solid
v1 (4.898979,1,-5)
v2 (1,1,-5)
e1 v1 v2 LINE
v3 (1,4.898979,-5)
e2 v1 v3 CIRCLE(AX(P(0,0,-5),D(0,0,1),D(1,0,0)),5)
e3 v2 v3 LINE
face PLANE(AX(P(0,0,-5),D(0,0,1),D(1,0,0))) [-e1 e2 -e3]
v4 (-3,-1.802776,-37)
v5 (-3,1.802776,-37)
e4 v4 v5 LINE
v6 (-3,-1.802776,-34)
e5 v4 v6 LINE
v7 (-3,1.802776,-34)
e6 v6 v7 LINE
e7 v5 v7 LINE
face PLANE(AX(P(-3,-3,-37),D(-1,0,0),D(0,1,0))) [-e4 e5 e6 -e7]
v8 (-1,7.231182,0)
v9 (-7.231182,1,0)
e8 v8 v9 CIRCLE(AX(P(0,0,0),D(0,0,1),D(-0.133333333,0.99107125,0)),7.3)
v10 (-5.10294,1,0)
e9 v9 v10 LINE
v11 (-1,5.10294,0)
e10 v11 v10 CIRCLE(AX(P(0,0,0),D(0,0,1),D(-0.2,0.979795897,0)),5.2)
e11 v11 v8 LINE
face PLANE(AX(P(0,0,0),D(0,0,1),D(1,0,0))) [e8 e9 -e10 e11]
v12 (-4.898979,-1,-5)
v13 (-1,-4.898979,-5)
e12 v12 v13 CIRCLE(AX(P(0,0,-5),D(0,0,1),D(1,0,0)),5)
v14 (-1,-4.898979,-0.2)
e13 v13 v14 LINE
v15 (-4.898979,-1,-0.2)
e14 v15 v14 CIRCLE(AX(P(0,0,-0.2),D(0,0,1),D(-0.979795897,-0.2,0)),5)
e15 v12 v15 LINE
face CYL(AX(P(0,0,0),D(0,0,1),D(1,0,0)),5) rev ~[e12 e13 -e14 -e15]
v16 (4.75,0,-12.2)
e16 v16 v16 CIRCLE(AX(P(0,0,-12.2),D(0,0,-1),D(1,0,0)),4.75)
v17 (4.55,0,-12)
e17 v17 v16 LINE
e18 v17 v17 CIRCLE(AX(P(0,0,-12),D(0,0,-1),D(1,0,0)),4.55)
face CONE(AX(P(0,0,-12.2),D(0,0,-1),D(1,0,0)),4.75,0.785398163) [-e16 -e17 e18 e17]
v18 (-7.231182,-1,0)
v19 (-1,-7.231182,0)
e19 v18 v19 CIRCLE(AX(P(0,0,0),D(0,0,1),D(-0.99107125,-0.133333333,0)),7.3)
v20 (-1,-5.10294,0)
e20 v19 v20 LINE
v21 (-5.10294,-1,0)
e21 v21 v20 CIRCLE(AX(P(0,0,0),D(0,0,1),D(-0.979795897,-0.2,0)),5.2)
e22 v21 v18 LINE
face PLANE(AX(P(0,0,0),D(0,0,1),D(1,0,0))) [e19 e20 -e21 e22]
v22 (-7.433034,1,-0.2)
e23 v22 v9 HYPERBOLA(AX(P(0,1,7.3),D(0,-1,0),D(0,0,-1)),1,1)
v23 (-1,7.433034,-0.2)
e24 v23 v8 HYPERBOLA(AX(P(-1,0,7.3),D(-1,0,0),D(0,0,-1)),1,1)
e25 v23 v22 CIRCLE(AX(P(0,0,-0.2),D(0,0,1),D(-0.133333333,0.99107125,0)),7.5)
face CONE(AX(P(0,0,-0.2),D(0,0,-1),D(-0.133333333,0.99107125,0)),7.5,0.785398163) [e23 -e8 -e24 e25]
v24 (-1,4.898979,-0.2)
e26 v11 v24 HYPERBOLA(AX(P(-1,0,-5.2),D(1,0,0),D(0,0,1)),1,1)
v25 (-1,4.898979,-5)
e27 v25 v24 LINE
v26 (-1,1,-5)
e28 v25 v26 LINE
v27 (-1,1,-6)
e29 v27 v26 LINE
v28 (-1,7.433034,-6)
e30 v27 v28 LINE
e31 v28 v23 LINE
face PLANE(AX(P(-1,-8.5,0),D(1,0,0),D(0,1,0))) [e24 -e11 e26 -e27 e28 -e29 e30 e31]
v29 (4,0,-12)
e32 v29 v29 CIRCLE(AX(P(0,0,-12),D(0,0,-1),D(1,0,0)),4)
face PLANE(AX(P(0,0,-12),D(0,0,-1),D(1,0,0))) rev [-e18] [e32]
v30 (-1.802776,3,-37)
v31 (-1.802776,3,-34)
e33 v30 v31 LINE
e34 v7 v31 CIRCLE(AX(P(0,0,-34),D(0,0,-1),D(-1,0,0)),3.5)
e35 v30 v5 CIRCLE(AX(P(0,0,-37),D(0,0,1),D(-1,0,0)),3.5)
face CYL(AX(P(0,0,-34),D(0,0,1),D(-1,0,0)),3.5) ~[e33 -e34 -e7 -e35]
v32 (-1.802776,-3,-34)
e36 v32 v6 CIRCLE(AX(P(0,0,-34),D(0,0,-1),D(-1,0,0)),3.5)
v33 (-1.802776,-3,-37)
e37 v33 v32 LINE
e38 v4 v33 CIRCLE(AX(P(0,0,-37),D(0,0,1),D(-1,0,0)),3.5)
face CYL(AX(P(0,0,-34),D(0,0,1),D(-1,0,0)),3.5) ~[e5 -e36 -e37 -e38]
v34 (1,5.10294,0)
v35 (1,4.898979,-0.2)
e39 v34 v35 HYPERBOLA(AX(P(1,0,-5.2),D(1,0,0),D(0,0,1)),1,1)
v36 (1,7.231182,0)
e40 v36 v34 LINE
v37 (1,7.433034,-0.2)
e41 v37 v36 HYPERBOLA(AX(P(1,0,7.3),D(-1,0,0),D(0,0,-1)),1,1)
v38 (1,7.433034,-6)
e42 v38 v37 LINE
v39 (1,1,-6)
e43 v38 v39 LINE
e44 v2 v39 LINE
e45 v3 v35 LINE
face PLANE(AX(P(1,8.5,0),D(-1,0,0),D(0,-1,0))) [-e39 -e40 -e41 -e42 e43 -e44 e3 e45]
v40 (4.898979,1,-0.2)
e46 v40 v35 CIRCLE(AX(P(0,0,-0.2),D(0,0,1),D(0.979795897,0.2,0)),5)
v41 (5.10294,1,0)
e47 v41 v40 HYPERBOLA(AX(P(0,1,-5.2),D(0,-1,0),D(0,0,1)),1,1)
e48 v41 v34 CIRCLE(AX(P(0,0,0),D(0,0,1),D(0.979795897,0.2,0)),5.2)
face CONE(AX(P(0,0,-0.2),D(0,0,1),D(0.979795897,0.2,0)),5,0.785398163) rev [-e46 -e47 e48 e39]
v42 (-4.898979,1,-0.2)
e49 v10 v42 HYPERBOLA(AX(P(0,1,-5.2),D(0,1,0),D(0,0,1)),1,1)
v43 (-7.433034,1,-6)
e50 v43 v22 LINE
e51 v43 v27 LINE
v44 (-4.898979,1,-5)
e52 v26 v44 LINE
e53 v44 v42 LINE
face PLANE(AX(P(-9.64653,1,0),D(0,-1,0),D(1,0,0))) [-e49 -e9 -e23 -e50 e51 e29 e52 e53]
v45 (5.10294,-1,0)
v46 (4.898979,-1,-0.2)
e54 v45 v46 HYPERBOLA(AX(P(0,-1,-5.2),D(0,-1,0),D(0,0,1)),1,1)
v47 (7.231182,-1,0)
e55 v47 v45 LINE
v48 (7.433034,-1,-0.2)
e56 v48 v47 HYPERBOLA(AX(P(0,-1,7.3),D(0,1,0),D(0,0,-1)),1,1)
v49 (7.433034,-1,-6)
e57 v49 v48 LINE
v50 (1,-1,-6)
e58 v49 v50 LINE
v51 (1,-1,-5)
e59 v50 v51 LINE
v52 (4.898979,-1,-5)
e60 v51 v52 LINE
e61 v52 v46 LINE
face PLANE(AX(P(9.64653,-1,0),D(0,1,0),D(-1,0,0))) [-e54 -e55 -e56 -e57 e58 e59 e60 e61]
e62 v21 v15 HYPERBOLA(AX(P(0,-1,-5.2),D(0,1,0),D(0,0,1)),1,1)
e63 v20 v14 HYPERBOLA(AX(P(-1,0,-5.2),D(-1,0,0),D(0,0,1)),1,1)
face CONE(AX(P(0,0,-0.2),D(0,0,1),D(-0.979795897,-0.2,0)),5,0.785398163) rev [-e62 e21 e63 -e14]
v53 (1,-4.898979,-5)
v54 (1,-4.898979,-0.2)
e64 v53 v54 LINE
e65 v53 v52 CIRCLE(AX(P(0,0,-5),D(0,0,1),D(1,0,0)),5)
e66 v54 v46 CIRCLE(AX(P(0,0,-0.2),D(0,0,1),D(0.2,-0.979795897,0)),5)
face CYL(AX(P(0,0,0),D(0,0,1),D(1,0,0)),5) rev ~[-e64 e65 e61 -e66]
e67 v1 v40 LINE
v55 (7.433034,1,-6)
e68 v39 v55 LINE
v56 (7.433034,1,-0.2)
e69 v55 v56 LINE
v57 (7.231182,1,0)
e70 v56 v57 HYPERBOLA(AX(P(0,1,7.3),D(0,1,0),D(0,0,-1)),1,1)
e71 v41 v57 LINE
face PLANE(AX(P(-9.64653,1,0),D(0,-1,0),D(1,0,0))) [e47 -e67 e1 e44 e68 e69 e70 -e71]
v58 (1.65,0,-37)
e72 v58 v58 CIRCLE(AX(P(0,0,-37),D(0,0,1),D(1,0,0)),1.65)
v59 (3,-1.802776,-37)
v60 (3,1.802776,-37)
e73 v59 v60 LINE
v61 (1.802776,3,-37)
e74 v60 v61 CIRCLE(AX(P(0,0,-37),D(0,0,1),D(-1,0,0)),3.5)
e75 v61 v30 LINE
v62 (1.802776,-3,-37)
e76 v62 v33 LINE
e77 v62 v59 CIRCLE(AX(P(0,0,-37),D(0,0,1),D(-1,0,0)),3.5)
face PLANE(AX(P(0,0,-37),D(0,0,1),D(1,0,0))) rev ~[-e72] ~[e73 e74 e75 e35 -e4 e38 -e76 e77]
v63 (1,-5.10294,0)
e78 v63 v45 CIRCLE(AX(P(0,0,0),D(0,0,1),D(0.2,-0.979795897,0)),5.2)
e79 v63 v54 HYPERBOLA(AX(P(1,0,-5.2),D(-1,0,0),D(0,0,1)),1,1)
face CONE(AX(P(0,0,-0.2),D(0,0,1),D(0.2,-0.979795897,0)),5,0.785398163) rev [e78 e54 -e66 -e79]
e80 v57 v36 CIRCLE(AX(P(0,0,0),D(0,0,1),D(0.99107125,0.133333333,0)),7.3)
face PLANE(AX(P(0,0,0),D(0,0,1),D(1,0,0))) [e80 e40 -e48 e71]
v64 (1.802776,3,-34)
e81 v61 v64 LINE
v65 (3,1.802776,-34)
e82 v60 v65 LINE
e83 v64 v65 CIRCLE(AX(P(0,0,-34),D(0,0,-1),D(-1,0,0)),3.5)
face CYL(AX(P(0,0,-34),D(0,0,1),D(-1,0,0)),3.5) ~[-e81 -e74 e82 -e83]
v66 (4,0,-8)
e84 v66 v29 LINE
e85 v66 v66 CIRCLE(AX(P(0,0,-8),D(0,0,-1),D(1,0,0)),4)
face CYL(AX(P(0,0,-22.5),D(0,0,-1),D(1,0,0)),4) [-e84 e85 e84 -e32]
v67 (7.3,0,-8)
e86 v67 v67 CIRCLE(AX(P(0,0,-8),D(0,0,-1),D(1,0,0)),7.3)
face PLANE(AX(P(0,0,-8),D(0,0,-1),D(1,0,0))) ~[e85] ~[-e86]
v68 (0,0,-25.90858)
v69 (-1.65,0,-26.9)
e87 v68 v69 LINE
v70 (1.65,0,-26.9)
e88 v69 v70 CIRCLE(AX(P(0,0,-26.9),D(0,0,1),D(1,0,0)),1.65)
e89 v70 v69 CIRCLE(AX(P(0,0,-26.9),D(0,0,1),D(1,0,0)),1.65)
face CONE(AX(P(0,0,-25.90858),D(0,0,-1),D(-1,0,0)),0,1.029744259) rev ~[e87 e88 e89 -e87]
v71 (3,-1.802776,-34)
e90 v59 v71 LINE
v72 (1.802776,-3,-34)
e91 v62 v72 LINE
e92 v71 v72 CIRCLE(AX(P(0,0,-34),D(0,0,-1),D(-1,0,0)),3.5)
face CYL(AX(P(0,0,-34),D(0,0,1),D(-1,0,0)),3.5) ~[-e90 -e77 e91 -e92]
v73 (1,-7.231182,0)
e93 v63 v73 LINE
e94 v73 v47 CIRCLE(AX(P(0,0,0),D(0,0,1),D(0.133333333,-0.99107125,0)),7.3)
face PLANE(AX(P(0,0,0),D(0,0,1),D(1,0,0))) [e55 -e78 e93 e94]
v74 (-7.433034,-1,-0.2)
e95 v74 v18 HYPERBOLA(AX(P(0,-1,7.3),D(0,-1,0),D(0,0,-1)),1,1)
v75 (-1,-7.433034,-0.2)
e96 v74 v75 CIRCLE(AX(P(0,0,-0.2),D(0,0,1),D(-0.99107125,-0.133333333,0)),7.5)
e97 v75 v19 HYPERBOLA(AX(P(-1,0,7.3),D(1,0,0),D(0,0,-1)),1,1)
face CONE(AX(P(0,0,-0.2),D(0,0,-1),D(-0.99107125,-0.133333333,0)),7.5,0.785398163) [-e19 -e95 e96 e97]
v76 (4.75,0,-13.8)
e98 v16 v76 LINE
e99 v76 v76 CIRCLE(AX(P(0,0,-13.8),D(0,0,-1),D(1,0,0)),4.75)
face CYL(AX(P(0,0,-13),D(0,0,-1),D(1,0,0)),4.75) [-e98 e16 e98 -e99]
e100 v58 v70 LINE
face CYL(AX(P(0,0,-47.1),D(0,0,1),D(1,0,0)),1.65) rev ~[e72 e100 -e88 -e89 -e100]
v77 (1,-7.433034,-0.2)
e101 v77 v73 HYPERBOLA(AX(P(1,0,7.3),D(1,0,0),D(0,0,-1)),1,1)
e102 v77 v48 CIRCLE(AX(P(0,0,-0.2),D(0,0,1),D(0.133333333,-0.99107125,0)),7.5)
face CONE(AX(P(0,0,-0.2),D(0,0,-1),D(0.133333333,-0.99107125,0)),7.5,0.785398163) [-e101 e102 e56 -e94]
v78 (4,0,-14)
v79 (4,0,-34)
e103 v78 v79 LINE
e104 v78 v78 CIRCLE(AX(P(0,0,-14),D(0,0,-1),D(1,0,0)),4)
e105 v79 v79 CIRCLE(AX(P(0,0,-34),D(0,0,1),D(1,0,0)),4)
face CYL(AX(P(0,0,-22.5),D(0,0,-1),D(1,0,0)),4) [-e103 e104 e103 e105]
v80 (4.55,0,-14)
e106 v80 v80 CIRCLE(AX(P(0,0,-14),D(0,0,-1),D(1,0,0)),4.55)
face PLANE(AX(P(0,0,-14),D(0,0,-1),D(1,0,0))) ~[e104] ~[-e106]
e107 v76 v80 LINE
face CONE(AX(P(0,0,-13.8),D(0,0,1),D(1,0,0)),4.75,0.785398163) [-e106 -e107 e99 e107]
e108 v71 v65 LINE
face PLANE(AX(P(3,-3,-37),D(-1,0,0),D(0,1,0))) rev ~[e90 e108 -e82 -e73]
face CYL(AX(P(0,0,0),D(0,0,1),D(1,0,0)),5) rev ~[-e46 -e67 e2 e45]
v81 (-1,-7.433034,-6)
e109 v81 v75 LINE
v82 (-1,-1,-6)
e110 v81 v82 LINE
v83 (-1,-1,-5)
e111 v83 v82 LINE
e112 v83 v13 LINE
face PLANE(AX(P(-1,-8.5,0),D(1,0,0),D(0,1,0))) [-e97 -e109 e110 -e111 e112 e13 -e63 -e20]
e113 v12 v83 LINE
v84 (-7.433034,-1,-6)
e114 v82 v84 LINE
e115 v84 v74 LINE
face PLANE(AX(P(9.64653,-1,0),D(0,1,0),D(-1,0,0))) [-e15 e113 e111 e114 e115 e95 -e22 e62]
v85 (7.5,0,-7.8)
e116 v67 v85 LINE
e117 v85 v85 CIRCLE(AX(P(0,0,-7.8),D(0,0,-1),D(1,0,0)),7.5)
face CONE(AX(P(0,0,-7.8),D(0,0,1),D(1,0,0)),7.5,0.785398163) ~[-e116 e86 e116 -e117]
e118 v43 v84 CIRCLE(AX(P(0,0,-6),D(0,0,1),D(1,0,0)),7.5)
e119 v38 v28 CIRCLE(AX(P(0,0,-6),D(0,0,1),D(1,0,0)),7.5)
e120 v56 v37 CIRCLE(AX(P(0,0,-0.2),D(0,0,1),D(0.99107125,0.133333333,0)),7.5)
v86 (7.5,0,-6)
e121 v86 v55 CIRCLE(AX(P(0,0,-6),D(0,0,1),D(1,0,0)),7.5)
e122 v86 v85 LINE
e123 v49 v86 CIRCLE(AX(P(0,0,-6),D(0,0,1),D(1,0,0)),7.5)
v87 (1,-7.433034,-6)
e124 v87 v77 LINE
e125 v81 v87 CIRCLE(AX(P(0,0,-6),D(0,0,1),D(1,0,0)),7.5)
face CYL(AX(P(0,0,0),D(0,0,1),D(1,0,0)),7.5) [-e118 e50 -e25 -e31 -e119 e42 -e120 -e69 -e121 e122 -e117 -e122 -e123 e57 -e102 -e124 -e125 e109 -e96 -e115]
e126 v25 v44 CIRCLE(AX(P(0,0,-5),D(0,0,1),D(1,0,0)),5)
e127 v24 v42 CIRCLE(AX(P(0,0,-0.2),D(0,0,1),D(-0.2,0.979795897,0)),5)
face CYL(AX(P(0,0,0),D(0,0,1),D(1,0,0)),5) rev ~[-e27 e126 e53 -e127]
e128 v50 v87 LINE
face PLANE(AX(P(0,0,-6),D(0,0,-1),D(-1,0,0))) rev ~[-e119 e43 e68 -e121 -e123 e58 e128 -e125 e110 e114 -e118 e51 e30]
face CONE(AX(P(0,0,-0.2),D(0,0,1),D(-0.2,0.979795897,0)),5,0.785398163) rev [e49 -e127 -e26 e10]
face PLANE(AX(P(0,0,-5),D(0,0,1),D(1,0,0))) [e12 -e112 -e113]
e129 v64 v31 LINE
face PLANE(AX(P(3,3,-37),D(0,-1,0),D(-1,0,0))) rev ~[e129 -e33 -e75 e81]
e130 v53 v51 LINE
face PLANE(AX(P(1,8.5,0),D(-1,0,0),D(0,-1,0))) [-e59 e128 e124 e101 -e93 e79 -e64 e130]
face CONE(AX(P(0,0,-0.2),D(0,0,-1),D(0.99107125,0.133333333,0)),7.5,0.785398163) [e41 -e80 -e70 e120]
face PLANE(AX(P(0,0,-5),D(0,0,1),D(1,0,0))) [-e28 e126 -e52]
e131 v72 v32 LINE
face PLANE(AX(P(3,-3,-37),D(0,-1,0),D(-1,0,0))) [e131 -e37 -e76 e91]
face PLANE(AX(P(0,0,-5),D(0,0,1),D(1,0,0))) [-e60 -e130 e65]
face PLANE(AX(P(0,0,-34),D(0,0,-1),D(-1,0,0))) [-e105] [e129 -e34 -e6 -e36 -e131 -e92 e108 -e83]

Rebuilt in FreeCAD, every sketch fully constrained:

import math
import FreeCAD as App
import Part
import Sketcher

V = App.Vector
Q = App.Units.Quantity


def edges_at(feature, points):
    """Names of the edges that pass closest to the given points."""
    edges = feature.Shape.Edges
    near = lambda p: min(range(len(edges)), key=lambda i: edges[i].distToShape(Part.Vertex(*p))[0])
    return sorted({f"Edge{near(p) + 1}" for p in points})


def add_polygon(sketch, points):
    """Adds a closed chain of lines whose ends are joined by coincident constraints."""
    first, n = sketch.GeometryCount, len(points)
    for a, b in zip(points, points[1:] + points[:1]):
        sketch.addGeometry(Part.LineSegment(App.Vector(*a, 0), App.Vector(*b, 0)), False)
    for i in range(n):
        sketch.addConstraint(Sketcher.Constraint("Coincident", first + i, 2, first + (i + 1) % n, 1))

doc = App.newDocument("Part")
body = doc.addObject("PartDesign::Body", "Body")

sketch1 = body.newObject("Sketcher::SketchObject", "Sketch")
sketch1.AttachmentSupport = (doc.getObject("XY_Plane"), [""])
sketch1.MapMode = "FlatFace"
sketch1.addGeometry(Part.Circle(V(0, 0, 0), V(0, 0, 1), 7.5), False)
sketch1.addConstraint(Sketcher.Constraint("Coincident", 0, 3, -1, 1))
sketch1.addConstraint(Sketcher.Constraint("Diameter", 0, Q("15 mm")))
pad1 = body.newObject("PartDesign::Pad", "Pad")
pad1.Profile = sketch1
pad1.Length = 37
pad1.Reversed = True

sketch2 = body.newObject("Sketcher::SketchObject", "Sketch001")
sketch2.AttachmentSupport = (doc.getObject("XZ_Plane"), [""])
sketch2.MapMode = "FlatFace"
add_polygon(sketch2, [(4, -37), (4, -8), (7.5, -8), (7.5, -37)])
sketch2.addConstraint(Sketcher.Constraint("Vertical", 0))
sketch2.addConstraint(Sketcher.Constraint("Horizontal", 1))
sketch2.addConstraint(Sketcher.Constraint("Vertical", 2))
sketch2.addConstraint(Sketcher.Constraint("Horizontal", 3))
sketch2.addConstraint(Sketcher.Constraint("DistanceY", 0, 1, 0, 2, Q("29 mm")))
sketch2.addConstraint(Sketcher.Constraint("DistanceX", 1, 1, 1, 2, Q("3.5 mm")))
sketch2.addConstraint(Sketcher.Constraint("DistanceX", -1, 1, 0, 2, Q("4 mm")))
sketch2.addConstraint(Sketcher.Constraint("DistanceY", 0, 2, -1, 1, Q("8 mm")))
groove = body.newObject("PartDesign::Groove", "Groove")
groove.Profile = sketch2
groove.ReferenceAxis = (sketch2, ["V_Axis"])
groove.Angle = 360

sketch3 = body.newObject("Sketcher::SketchObject", "Sketch002")
sketch3.AttachmentSupport = (doc.getObject("XY_Plane"), [""])
sketch3.MapMode = "FlatFace"
sketch3.addGeometry(Part.LineSegment(V(9.64653, 1, 0), V(-9.64653, 1, 0)), False)
sketch3.addGeometry(Part.ArcOfCircle(Part.Circle(V(-9.64653, 0, 0), V(0, 0, 1), 1), math.radians(90), math.radians(270)), False)
sketch3.addGeometry(Part.LineSegment(V(-9.64653, -1, 0), V(9.64653, -1, 0)), False)
sketch3.addGeometry(Part.ArcOfCircle(Part.Circle(V(9.64653, 0, 0), V(0, 0, 1), 1), math.radians(-90), math.radians(90)), False)
sketch3.addConstraint(Sketcher.Constraint("Tangent", 0, 2, 1, 1))
sketch3.addConstraint(Sketcher.Constraint("Tangent", 1, 2, 2, 1))
sketch3.addConstraint(Sketcher.Constraint("Tangent", 2, 2, 3, 1))
sketch3.addConstraint(Sketcher.Constraint("Tangent", 3, 2, 0, 1))
sketch3.addConstraint(Sketcher.Constraint("Horizontal", 0))
sketch3.addConstraint(Sketcher.Constraint("Horizontal", 2))
sketch3.addConstraint(Sketcher.Constraint("Symmetric", 1, 3, 3, 3, -1, 1))
sketch3.addConstraint(Sketcher.Constraint("Radius", 1, Q("1 mm")))
sketch3.addConstraint(Sketcher.Constraint("DistanceX", 0, 2, 0, 1, Q("19.293059 mm")))
pocket1 = body.newObject("PartDesign::Pocket", "Pocket")
pocket1.Profile = sketch3
pocket1.Length = 6

sketch4 = body.newObject("Sketcher::SketchObject", "Sketch003")
sketch4.AttachmentSupport = (doc.getObject("XY_Plane"), [""])
sketch4.MapMode = "FlatFace"
sketch4.addGeometry(Part.LineSegment(V(1, -8.5, 0), V(1, 8.5, 0)), False)
sketch4.addGeometry(Part.ArcOfCircle(Part.Circle(V(0, 8.5, 0), V(0, 0, 1), 1), math.radians(0), math.radians(180)), False)
sketch4.addGeometry(Part.LineSegment(V(-1, 8.5, 0), V(-1, -8.5, 0)), False)
sketch4.addGeometry(Part.ArcOfCircle(Part.Circle(V(0, -8.5, 0), V(0, 0, 1), 1), math.radians(180), math.radians(360)), False)
sketch4.addConstraint(Sketcher.Constraint("Tangent", 0, 2, 1, 1))
sketch4.addConstraint(Sketcher.Constraint("Tangent", 1, 2, 2, 1))
sketch4.addConstraint(Sketcher.Constraint("Tangent", 2, 2, 3, 1))
sketch4.addConstraint(Sketcher.Constraint("Tangent", 3, 2, 0, 1))
sketch4.addConstraint(Sketcher.Constraint("Vertical", 0))
sketch4.addConstraint(Sketcher.Constraint("Vertical", 2))
sketch4.addConstraint(Sketcher.Constraint("Symmetric", 1, 3, 3, 3, -1, 1))
sketch4.addConstraint(Sketcher.Constraint("Radius", 1, Q("1 mm")))
sketch4.addConstraint(Sketcher.Constraint("DistanceY", 0, 1, 0, 2, Q("17 mm")))
pocket2 = body.newObject("PartDesign::Pocket", "Pocket001")
pocket2.Profile = sketch4
pocket2.Length = 6

sketch5 = body.newObject("Sketcher::SketchObject", "Sketch004")
sketch5.AttachmentSupport = (doc.getObject("XY_Plane"), [""])
sketch5.MapMode = "FlatFace"
sketch5.addGeometry(Part.Circle(V(0, 0, 0), V(0, 0, 1), 5), False)
sketch5.addConstraint(Sketcher.Constraint("Coincident", 0, 3, -1, 1))
sketch5.addConstraint(Sketcher.Constraint("Diameter", 0, Q("10 mm")))
pocket3 = body.newObject("PartDesign::Pocket", "Pocket002")
pocket3.Profile = sketch5
pocket3.Length = 5

sketch6 = body.newObject("Sketcher::SketchObject", "Sketch005")
sketch6.AttachmentSupport = (doc.getObject("XY_Plane"), [""])
sketch6.MapMode = "FlatFace"
sketch6.AttachmentOffset = App.Placement(V(0, 0, -37), App.Rotation())
add_polygon(sketch6, [(12.765, 12.765), (12.765, -12.765), (-12.765, -12.765), (-12.765, 12.765)])
add_polygon(sketch6, [(-3, -3), (3, -3), (3, 3), (-3, 3)])
sketch6.addConstraint(Sketcher.Constraint("Vertical", 0))
sketch6.addConstraint(Sketcher.Constraint("Horizontal", 1))
sketch6.addConstraint(Sketcher.Constraint("Vertical", 2))
sketch6.addConstraint(Sketcher.Constraint("Horizontal", 3))
sketch6.addConstraint(Sketcher.Constraint("Horizontal", 4))
sketch6.addConstraint(Sketcher.Constraint("Vertical", 5))
sketch6.addConstraint(Sketcher.Constraint("Horizontal", 6))
sketch6.addConstraint(Sketcher.Constraint("Vertical", 7))
sketch6.addConstraint(Sketcher.Constraint("Symmetric", 0, 2, 2, 2, -1, 1))
sketch6.addConstraint(Sketcher.Constraint("Symmetric", 4, 2, 6, 2, -1, 1))
sketch6.addConstraint(Sketcher.Constraint("Equal", 3, 0))
sketch6.addConstraint(Sketcher.Constraint("Equal", 6, 5))
sketch6.addConstraint(Sketcher.Constraint("DistanceX", 4, 1, 4, 2, Q("6 mm")))
sketch6.addConstraint(Sketcher.Constraint("DistanceX", 1, 2, 1, 1, Q("25.53 mm")))
pocket4 = body.newObject("PartDesign::Pocket", "Pocket003")
pocket4.Profile = sketch6
pocket4.Length = 3
pocket4.Reversed = True

sketch7 = body.newObject("Sketcher::SketchObject", "Sketch006")
sketch7.AttachmentSupport = (doc.getObject("XY_Plane"), [""])
sketch7.MapMode = "FlatFace"
sketch7.AttachmentOffset = App.Placement(V(0, 0, -34), App.Rotation())
sketch7.addGeometry(Part.Circle(V(0, 0, 0), V(0, 0, 1), 4.909942), False)
sketch7.addGeometry(Part.Circle(V(0, 0, 0), V(0, 0, 1), 3.5), False)
sketch7.addConstraint(Sketcher.Constraint("Coincident", 0, 3, -1, 1))
sketch7.addConstraint(Sketcher.Constraint("Coincident", 1, 3, -1, 1))
sketch7.addConstraint(Sketcher.Constraint("Diameter", 1, Q("7 mm")))
sketch7.addConstraint(Sketcher.Constraint("Diameter", 0, Q("9.819884 mm")))
pocket5 = body.newObject("PartDesign::Pocket", "Pocket004")
pocket5.Profile = sketch7
pocket5.Type = "ThroughAll"

sketch8 = body.newObject("Sketcher::SketchObject", "Sketch007")
sketch8.AttachmentSupport = (doc.getObject("XY_Plane"), [""])
sketch8.MapMode = "FlatFace"
sketch8.AttachmentOffset = App.Placement(V(0, 0, -37), App.Rotation())
sketch8.addGeometry(Part.Circle(V(0, 0, 0), V(0, 0, 1), 1.65), False)
sketch8.addConstraint(Sketcher.Constraint("Coincident", 0, 3, -1, 1))
sketch8.addConstraint(Sketcher.Constraint("Diameter", 0, Q("3.3 mm")))
doc.recompute()
hole = body.newObject("PartDesign::Hole", "Hole")
hole.Profile = sketch8
hole.ThreadType = "None"
hole.Diameter = 3.3
hole.DepthType = "Dimension"
hole.Depth = 10.1
hole.DrillPoint = "Angled"
hole.DrillPointAngle = 118
hole.Reversed = True

sketch9 = body.newObject("Sketcher::SketchObject", "Sketch008")
sketch9.AttachmentSupport = (doc.getObject("XZ_Plane"), [""])
sketch9.MapMode = "FlatFace"
add_polygon(sketch9, [(4, -14), (4, -12), (4.75, -12), (4.75, -14)])
sketch9.addConstraint(Sketcher.Constraint("Vertical", 0))
sketch9.addConstraint(Sketcher.Constraint("Horizontal", 1))
sketch9.addConstraint(Sketcher.Constraint("Vertical", 2))
sketch9.addConstraint(Sketcher.Constraint("Horizontal", 3))
sketch9.addConstraint(Sketcher.Constraint("DistanceY", 0, 1, 0, 2, Q("2 mm")))
sketch9.addConstraint(Sketcher.Constraint("DistanceX", -1, 1, 0, 2, Q("4 mm")))
sketch9.addConstraint(Sketcher.Constraint("DistanceY", 0, 2, -1, 1, Q("12 mm")))
sketch9.addConstraint(Sketcher.Constraint("DistanceX", 1, 1, 1, 2, Q("0.75 mm")))
revolution = body.newObject("PartDesign::Revolution", "Revolution")
revolution.Profile = sketch9
revolution.ReferenceAxis = (sketch9, ["V_Axis"])
revolution.Angle = 360
doc.recompute()

chamfer = body.newObject("PartDesign::Chamfer", "Chamfer")
chamfer.Base = (revolution, edges_at(revolution, [(-4.75, 0, -12), (-4.75, 0, -14)]))
chamfer.Size = 0.2
doc.recompute()

chamfer2 = body.newObject("PartDesign::Chamfer", "Chamfer001")
chamfer2.Base = (chamfer, edges_at(chamfer, [
    (-5.303, -5.303, 0),
    (5.303, 5.303, 0),
    (5.303, -5.303, 0),
    (-5.303, 5.303, 0),
    (-7.5, 0, -8),
    (-3.536, -3.536, 0),
    (3.536, -3.536, 0),
    (3.536, 3.536, 0),
    (-3.536, 3.536, 0),
]))
chamfer2.Size = 0.2

doc.recompute()
